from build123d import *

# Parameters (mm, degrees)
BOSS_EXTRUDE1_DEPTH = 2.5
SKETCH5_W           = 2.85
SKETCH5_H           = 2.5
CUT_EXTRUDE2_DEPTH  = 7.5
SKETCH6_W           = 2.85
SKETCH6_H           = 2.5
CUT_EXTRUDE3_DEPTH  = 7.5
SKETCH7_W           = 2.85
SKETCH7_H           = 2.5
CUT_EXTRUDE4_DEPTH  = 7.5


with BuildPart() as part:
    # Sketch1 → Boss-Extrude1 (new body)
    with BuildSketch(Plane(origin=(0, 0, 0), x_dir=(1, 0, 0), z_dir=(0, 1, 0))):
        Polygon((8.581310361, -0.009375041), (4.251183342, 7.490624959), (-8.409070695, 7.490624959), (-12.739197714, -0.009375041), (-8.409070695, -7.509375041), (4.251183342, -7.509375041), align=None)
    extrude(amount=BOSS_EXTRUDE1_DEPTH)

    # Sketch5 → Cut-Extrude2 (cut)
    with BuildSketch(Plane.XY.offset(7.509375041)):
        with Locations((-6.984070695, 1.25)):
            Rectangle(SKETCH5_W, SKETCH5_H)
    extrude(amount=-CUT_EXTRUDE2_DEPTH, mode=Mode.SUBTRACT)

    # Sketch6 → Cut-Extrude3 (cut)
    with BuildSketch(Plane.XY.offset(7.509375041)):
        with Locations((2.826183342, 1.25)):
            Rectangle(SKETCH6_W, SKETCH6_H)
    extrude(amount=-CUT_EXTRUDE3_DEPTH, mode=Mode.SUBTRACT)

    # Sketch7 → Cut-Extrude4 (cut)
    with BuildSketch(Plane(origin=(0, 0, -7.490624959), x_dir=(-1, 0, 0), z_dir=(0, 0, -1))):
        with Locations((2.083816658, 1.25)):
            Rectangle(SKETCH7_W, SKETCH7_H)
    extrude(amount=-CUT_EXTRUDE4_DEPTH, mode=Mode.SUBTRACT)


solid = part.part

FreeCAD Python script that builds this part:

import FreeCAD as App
import Part
import Sketcher
Q = App.Units.Quantity


def add_polygon(sketch, points):
    """Adds a closed chain of lines whose ends are joined by coincident constraints."""
    first, n = sketch.GeometryCount, len(points)
    for a, b in zip(points, points[1:] + points[:1]):
        sketch.addGeometry(Part.LineSegment(App.Vector(*a, 0), App.Vector(*b, 0)), False)
    for i in range(n):
        sketch.addConstraint(Sketcher.Constraint("Coincident", first + i, 2, first + (i + 1) % n, 1))

doc = App.newDocument("Part")
body = doc.addObject("PartDesign::Body", "Body")

# Sketch on XZ plane
sketch1 = body.newObject("Sketcher::SketchObject", "Sketch")
sketch1.AttachmentSupport = (doc.getObject("XZ_Plane"), [""])
sketch1.MapMode = "FlatFace"
add_polygon(sketch1, [(8.58131, 0.009375), (4.251183, -7.490625), (-8.409071, -7.490625), (-12.739198, 0.009375), (-8.409071, 7.509375), (4.251183, 7.509375)])  # lines 0-5
sketch1.addConstraint([
    Sketcher.Constraint("Horizontal", 1),
    Sketcher.Constraint("Horizontal", 4),
    Sketcher.Constraint("Parallel", 0, 3),
    Sketcher.Constraint("Parallel", 2, 5),
    Sketcher.Constraint("Horizontal", 2, 2, 5, 2),
    Sketcher.Constraint("Vertical", 1, 2, 3, 2),
    Sketcher.Constraint("Vertical", 0, 2, 4, 2),
    Sketcher.Constraint("Angle", 0, Q("-120 deg")),
    Sketcher.Constraint("DistanceY", 1, 2, 3, 2, 15.0),
    Sketcher.Constraint("DistanceX", 1, 2, 1, 1, 12.660254),
    Sketcher.Constraint("DistanceX", 1, 2, -1, 1, 8.409071),
    Sketcher.Constraint("DistanceY", 0, 2, -1, 1, 7.490625),
])
pad1 = body.newObject("PartDesign::Pad", "Pad")
pad1.Profile = sketch1
pad1.Length = 2.5
pad1.Reversed = True

# Sketch on XY plane
sketch2 = body.newObject("Sketcher::SketchObject", "Sketch001")
sketch2.AttachmentSupport = (doc.getObject("XY_Plane"), [""])
sketch2.MapMode = "FlatFace"
sketch2.AttachmentOffset = App.Placement(App.Vector(0, 0, 7.509375), App.Rotation())
add_polygon(sketch2, [(-8.409071, 2.5), (-8.409071, 0), (-5.559071, 0), (-5.559071, 2.5)])  # lines 0-3
sketch2.addConstraint([
    Sketcher.Constraint("Vertical", 0),
    Sketcher.Constraint("Horizontal", 1),
    Sketcher.Constraint("Vertical", 2),
    Sketcher.Constraint("Horizontal", 3),
    Sketcher.Constraint("PointOnObject", 0, 2, -1),
    Sketcher.Constraint("DistanceY", 0, 2, 0, 1, 2.5),
    Sketcher.Constraint("DistanceX", 1, 1, 1, 2, 2.85),
    Sketcher.Constraint("DistanceX", 0, 2, -1, 1, 8.409071),
])
pocket1 = body.newObject("PartDesign::Pocket", "Pocket")
pocket1.Profile = sketch2
pocket1.Length = 7.5

# Sketch on XY plane
sketch3 = body.newObject("Sketcher::SketchObject", "Sketch002")
sketch3.AttachmentSupport = (doc.getObject("XY_Plane"), [""])
sketch3.MapMode = "FlatFace"
sketch3.AttachmentOffset = App.Placement(App.Vector(0, 0, 7.509375), App.Rotation())
add_polygon(sketch3, [(1.401183, 2.5), (1.401183, 0), (4.251183, 0), (4.251183, 2.5)])  # lines 0-3
sketch3.addConstraint([
    Sketcher.Constraint("Vertical", 0),
    Sketcher.Constraint("Horizontal", 1),
    Sketcher.Constraint("Vertical", 2),
    Sketcher.Constraint("Horizontal", 3),
    Sketcher.Constraint("PointOnObject", 0, 2, -1),
    Sketcher.Constraint("DistanceY", 0, 2, 0, 1, 2.5),
    Sketcher.Constraint("DistanceX", 1, 1, 1, 2, 2.85),
    Sketcher.Constraint("DistanceX", -1, 1, 0, 2, 1.401183),
])
pocket2 = body.newObject("PartDesign::Pocket", "Pocket001")
pocket2.Profile = sketch3
pocket2.Length = 7.5

# Sketch on XY plane
sketch4 = body.newObject("Sketcher::SketchObject", "Sketch003")
sketch4.AttachmentSupport = (doc.getObject("XY_Plane"), [""])
sketch4.MapMode = "FlatFace"
sketch4.AttachmentOffset = App.Placement(App.Vector(0, 0, -7.490625), App.Rotation())
add_polygon(sketch4, [(-0.658817, 2.5), (-0.658817, 0), (-3.508817, 0), (-3.508817, 2.5)])  # lines 0-3
sketch4.addConstraint([
    Sketcher.Constraint("Vertical", 0),
    Sketcher.Constraint("Horizontal", 1),
    Sketcher.Constraint("Vertical", 2),
    Sketcher.Constraint("Horizontal", 3),
    Sketcher.Constraint("PointOnObject", 0, 2, -1),
    Sketcher.Constraint("DistanceY", 0, 2, 0, 1, 2.5),
    Sketcher.Constraint("DistanceX", 1, 2, 1, 1, 2.85),
    Sketcher.Constraint("DistanceX", 0, 2, -1, 1, 0.658817),
])
pocket3 = body.newObject("PartDesign::Pocket", "Pocket002")
pocket3.Profile = sketch4
pocket3.Length = 7.5
pocket3.Reversed = True

doc.recompute()
